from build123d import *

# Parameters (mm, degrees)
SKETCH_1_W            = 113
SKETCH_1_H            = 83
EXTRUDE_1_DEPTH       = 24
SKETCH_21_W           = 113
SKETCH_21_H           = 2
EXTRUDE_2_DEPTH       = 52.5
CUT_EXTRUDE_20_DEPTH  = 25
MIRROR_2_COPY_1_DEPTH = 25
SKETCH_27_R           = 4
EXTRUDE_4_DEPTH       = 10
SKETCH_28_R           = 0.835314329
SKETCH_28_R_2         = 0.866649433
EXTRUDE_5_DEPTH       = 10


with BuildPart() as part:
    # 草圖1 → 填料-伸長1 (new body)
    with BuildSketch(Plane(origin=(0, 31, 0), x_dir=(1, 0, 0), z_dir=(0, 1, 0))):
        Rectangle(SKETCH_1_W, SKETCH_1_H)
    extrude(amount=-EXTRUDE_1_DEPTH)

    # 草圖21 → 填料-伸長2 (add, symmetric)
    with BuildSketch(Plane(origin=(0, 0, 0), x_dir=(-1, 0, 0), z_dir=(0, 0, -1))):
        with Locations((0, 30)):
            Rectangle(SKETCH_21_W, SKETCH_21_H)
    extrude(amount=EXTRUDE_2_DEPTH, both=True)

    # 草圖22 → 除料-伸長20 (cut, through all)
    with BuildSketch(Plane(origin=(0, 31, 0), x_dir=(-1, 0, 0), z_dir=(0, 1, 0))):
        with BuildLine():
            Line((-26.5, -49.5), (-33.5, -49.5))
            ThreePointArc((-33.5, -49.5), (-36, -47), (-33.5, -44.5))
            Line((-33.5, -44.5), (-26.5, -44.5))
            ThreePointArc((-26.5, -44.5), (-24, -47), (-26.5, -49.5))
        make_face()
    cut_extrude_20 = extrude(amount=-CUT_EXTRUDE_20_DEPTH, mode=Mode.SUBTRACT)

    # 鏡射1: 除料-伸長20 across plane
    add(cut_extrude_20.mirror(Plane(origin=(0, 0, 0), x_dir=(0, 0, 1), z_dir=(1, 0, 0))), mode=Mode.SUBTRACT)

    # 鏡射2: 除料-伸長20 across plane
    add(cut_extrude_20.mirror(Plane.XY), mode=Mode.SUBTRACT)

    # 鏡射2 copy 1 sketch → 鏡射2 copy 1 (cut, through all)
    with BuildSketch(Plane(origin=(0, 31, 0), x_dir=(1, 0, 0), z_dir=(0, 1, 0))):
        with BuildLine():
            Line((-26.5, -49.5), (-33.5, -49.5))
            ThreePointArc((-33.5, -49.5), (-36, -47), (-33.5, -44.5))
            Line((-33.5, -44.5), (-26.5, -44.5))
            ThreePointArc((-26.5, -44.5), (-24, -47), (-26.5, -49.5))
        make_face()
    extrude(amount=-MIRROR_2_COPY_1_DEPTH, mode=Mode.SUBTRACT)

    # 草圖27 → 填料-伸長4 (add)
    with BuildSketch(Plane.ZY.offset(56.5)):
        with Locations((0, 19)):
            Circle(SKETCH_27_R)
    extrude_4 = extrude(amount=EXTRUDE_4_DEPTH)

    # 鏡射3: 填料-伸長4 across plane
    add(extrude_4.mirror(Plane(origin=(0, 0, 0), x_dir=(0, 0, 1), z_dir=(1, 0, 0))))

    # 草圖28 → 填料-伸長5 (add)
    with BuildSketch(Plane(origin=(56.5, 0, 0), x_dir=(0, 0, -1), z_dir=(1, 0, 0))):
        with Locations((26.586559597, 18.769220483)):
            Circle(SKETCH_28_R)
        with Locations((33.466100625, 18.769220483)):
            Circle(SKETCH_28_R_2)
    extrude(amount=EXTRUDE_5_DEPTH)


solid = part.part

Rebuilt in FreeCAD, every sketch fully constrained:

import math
import FreeCAD as App
import Part
import Sketcher


def add_polygon(sketch, points):
    """Adds a closed chain of lines whose ends are joined by coincident constraints."""
    first, n = sketch.GeometryCount, len(points)
    for a, b in zip(points, points[1:] + points[:1]):
        sketch.addGeometry(Part.LineSegment(App.Vector(*a, 0), App.Vector(*b, 0)), False)
    for i in range(n):
        sketch.addConstraint(Sketcher.Constraint("Coincident", first + i, 2, first + (i + 1) % n, 1))

doc = App.newDocument("Part")
body = doc.addObject("PartDesign::Body", "Body")

sketch1 = body.newObject("Sketcher::SketchObject", "Sketch")
sketch1.AttachmentSupport = (doc.getObject("XZ_Plane"), [""])
sketch1.MapMode = "FlatFace"
sketch1.AttachmentOffset = App.Placement(App.Vector(0, 0, -31), App.Rotation())
add_polygon(sketch1, [(-56, -42), (-56, 42), (56, 42), (56, -42)])
sketch1.addConstraint([
    Sketcher.Constraint("Vertical", 0),
    Sketcher.Constraint("Horizontal", 1),
    Sketcher.Constraint("Vertical", 2),
    Sketcher.Constraint("Horizontal", 3),
    Sketcher.Constraint("Symmetric", 0, 2, 2, 2, -1, 1),
    Sketcher.Constraint("DistanceX", 1, 1, 1, 2, 113.0),
    Sketcher.Constraint("DistanceY", 0, 1, 0, 2, 83.0),
])
pad1 = body.newObject("PartDesign::Pad", "Pad")
pad1.Profile = sketch1
pad1.Length = 24

sketch2 = body.newObject("Sketcher::SketchObject", "Sketch001")
sketch2.AttachmentSupport = (doc.getObject("XY_Plane"), [""])
sketch2.MapMode = "FlatFace"
add_polygon(sketch2, [(56.5, 31), (56.5, 29), (-56.5, 29), (-56.5, 31)])
sketch2.addConstraint([
    Sketcher.Constraint("Vertical", 0),
    Sketcher.Constraint("Horizontal", 1),
    Sketcher.Constraint("Vertical", 2),
    Sketcher.Constraint("Horizontal", 3),
    Sketcher.Constraint("DistanceX", 1, 2, 1, 1, 113.0),
    Sketcher.Constraint("DistanceY", 0, 2, 0, 1, 2.0),
    Sketcher.Constraint("DistanceY", -1, 1, 0, 2, 29.0),
    Sketcher.Constraint("DistanceX", -1, 1, 0, 2, 56.5),
])
pad2 = body.newObject("PartDesign::Pad", "Pad001")
pad2.Profile = sketch2
pad2.Length = 105
pad2.Midplane = True

sketch3 = body.newObject("Sketcher::SketchObject", "Sketch002")
sketch3.AttachmentSupport = (doc.getObject("XZ_Plane"), [""])
sketch3.MapMode = "FlatFace"
sketch3.AttachmentOffset = App.Placement(App.Vector(0, 0, -31), App.Rotation())
sketch3.addGeometry([
    Part.LineSegment(App.Vector(33.5, -49.5, 0), App.Vector(26.5, -49.5, 0)),
    Part.ArcOfCircle(Part.Circle(App.Vector(26.5, -47, 0), App.Vector(0, 0, 1), 2.5), math.radians(90), math.radians(270)),
    Part.LineSegment(App.Vector(26.5, -44.5, 0), App.Vector(33.5, -44.5, 0)),
    Part.ArcOfCircle(Part.Circle(App.Vector(33.5, -47, 0), App.Vector(0, 0, 1), 2.5), math.radians(-90), math.radians(90)),
], False)
sketch3.addConstraint([
    Sketcher.Constraint("Tangent", 0, 2, 1, 2),
    Sketcher.Constraint("Tangent", 1, 1, 2, 1),
    Sketcher.Constraint("Tangent", 2, 2, 3, 2),
    Sketcher.Constraint("Tangent", 3, 1, 0, 1),
    Sketcher.Constraint("Horizontal", 0),
    Sketcher.Constraint("Horizontal", 2),
    Sketcher.Constraint("Radius", 1, 2.5),
    Sketcher.Constraint("DistanceX", 0, 2, 0, 1, 7.0),
    Sketcher.Constraint("DistanceY", 1, 3, -1, 1, 47.0),
    Sketcher.Constraint("DistanceX", -1, 1, 1, 3, 26.5),
])
pocket1 = body.newObject("PartDesign::Pocket", "Pocket")
pocket1.Profile = sketch3
pocket1.Type = "ThroughAll"
pocket1.Reversed = True
doc.recompute()

mirrored = body.newObject("PartDesign::Mirrored", "Mirrored")
mirrored.Originals = [pocket1]
mirrored.MirrorPlane = (doc.getObject("YZ_Plane"), [""])
body.Tip = mirrored
doc.recompute()

mirrored2 = body.newObject("PartDesign::Mirrored", "Mirrored001")
mirrored2.Originals = [pocket1]
mirrored2.MirrorPlane = (doc.getObject("XY_Plane"), [""])
body.Tip = mirrored2

sketch4 = body.newObject("Sketcher::SketchObject", "Sketch003")
sketch4.AttachmentSupport = (doc.getObject("XZ_Plane"), [""])
sketch4.MapMode = "FlatFace"
sketch4.AttachmentOffset = App.Placement(App.Vector(0, 0, -31), App.Rotation())
sketch4.addGeometry([
    Part.LineSegment(App.Vector(-33.5, 49.5, 0), App.Vector(-26.5, 49.5, 0)),
    Part.ArcOfCircle(Part.Circle(App.Vector(-26.5, 47, 0), App.Vector(0, 0, 1), 2.5), math.radians(-90), math.radians(90)),
    Part.LineSegment(App.Vector(-26.5, 44.5, 0), App.Vector(-33.5, 44.5, 0)),
    Part.ArcOfCircle(Part.Circle(App.Vector(-33.5, 47, 0), App.Vector(0, 0, 1), 2.5), math.radians(90), math.radians(270)),
], False)
sketch4.addConstraint([
    Sketcher.Constraint("Tangent", 0, 2, 1, 2),
    Sketcher.Constraint("Tangent", 1, 1, 2, 1),
    Sketcher.Constraint("Tangent", 2, 2, 3, 2),
    Sketcher.Constraint("Tangent", 3, 1, 0, 1),
    Sketcher.Constraint("Horizontal", 0),
    Sketcher.Constraint("Horizontal", 2),
    Sketcher.Constraint("Radius", 1, 2.5),
    Sketcher.Constraint("DistanceX", 0, 1, 0, 2, 7.0),
    Sketcher.Constraint("DistanceY", -1, 1, 1, 3, 47.0),
    Sketcher.Constraint("DistanceX", 1, 3, -1, 1, 26.5),
])
pocket2 = body.newObject("PartDesign::Pocket", "Pocket001")
pocket2.Profile = sketch4
pocket2.Type = "ThroughAll"
pocket2.Reversed = True

sketch5 = body.newObject("Sketcher::SketchObject", "Sketch004")
sketch5.AttachmentSupport = (doc.getObject("YZ_Plane"), [""])
sketch5.MapMode = "FlatFace"
sketch5.AttachmentOffset = App.Placement(App.Vector(0, 0, -56.5), App.Rotation())
sketch5.addGeometry(Part.Circle(App.Vector(19, 0, 0), App.Vector(0, 0, 1), 4), False)
sketch5.addConstraint([
    Sketcher.Constraint("PointOnObject", 0, 3, -1),
    Sketcher.Constraint("Diameter", 0, 8.0),
    Sketcher.Constraint("DistanceX", -1, 1, 0, 3, 19.0),
])
pad3 = body.newObject("PartDesign::Pad", "Pad002")
pad3.Profile = sketch5
pad3.Length = 10
pad3.Reversed = True
doc.recompute()

mirrored3 = body.newObject("PartDesign::Mirrored", "Mirrored002")
mirrored3.Originals = [pad3]
mirrored3.MirrorPlane = (doc.getObject("YZ_Plane"), [""])
body.Tip = mirrored3

sketch6 = body.newObject("Sketcher::SketchObject", "Sketch005")
sketch6.AttachmentSupport = (doc.getObject("YZ_Plane"), [""])
sketch6.MapMode = "FlatFace"
sketch6.AttachmentOffset = App.Placement(App.Vector(0, 0, 56.5), App.Rotation())
sketch6.addGeometry([
    Part.Circle(App.Vector(18.8, -26.6, 0), App.Vector(0, 0, 1), 0.8),
    Part.Circle(App.Vector(18.8, -33.5, 0), App.Vector(0, 0, 1), 0.9),
], False)
sketch6.addConstraint([
    Sketcher.Constraint("Vertical", 0, 3, 1, 3),
    Sketcher.Constraint("Diameter", 1, 1.733299),
    Sketcher.Constraint("Diameter", 0, 1.670629),
    Sketcher.Constraint("DistanceY", 1, 3, -1, 1, 33.466101),
    Sketcher.Constraint("DistanceX", -1, 1, 0, 3, 18.76922),
    Sketcher.Constraint("DistanceY", 0, 3, -1, 1, 26.58656),
])
pad4 = body.newObject("PartDesign::Pad", "Pad003")
pad4.Profile = sketch6
pad4.Length = 10

doc.recompute()
